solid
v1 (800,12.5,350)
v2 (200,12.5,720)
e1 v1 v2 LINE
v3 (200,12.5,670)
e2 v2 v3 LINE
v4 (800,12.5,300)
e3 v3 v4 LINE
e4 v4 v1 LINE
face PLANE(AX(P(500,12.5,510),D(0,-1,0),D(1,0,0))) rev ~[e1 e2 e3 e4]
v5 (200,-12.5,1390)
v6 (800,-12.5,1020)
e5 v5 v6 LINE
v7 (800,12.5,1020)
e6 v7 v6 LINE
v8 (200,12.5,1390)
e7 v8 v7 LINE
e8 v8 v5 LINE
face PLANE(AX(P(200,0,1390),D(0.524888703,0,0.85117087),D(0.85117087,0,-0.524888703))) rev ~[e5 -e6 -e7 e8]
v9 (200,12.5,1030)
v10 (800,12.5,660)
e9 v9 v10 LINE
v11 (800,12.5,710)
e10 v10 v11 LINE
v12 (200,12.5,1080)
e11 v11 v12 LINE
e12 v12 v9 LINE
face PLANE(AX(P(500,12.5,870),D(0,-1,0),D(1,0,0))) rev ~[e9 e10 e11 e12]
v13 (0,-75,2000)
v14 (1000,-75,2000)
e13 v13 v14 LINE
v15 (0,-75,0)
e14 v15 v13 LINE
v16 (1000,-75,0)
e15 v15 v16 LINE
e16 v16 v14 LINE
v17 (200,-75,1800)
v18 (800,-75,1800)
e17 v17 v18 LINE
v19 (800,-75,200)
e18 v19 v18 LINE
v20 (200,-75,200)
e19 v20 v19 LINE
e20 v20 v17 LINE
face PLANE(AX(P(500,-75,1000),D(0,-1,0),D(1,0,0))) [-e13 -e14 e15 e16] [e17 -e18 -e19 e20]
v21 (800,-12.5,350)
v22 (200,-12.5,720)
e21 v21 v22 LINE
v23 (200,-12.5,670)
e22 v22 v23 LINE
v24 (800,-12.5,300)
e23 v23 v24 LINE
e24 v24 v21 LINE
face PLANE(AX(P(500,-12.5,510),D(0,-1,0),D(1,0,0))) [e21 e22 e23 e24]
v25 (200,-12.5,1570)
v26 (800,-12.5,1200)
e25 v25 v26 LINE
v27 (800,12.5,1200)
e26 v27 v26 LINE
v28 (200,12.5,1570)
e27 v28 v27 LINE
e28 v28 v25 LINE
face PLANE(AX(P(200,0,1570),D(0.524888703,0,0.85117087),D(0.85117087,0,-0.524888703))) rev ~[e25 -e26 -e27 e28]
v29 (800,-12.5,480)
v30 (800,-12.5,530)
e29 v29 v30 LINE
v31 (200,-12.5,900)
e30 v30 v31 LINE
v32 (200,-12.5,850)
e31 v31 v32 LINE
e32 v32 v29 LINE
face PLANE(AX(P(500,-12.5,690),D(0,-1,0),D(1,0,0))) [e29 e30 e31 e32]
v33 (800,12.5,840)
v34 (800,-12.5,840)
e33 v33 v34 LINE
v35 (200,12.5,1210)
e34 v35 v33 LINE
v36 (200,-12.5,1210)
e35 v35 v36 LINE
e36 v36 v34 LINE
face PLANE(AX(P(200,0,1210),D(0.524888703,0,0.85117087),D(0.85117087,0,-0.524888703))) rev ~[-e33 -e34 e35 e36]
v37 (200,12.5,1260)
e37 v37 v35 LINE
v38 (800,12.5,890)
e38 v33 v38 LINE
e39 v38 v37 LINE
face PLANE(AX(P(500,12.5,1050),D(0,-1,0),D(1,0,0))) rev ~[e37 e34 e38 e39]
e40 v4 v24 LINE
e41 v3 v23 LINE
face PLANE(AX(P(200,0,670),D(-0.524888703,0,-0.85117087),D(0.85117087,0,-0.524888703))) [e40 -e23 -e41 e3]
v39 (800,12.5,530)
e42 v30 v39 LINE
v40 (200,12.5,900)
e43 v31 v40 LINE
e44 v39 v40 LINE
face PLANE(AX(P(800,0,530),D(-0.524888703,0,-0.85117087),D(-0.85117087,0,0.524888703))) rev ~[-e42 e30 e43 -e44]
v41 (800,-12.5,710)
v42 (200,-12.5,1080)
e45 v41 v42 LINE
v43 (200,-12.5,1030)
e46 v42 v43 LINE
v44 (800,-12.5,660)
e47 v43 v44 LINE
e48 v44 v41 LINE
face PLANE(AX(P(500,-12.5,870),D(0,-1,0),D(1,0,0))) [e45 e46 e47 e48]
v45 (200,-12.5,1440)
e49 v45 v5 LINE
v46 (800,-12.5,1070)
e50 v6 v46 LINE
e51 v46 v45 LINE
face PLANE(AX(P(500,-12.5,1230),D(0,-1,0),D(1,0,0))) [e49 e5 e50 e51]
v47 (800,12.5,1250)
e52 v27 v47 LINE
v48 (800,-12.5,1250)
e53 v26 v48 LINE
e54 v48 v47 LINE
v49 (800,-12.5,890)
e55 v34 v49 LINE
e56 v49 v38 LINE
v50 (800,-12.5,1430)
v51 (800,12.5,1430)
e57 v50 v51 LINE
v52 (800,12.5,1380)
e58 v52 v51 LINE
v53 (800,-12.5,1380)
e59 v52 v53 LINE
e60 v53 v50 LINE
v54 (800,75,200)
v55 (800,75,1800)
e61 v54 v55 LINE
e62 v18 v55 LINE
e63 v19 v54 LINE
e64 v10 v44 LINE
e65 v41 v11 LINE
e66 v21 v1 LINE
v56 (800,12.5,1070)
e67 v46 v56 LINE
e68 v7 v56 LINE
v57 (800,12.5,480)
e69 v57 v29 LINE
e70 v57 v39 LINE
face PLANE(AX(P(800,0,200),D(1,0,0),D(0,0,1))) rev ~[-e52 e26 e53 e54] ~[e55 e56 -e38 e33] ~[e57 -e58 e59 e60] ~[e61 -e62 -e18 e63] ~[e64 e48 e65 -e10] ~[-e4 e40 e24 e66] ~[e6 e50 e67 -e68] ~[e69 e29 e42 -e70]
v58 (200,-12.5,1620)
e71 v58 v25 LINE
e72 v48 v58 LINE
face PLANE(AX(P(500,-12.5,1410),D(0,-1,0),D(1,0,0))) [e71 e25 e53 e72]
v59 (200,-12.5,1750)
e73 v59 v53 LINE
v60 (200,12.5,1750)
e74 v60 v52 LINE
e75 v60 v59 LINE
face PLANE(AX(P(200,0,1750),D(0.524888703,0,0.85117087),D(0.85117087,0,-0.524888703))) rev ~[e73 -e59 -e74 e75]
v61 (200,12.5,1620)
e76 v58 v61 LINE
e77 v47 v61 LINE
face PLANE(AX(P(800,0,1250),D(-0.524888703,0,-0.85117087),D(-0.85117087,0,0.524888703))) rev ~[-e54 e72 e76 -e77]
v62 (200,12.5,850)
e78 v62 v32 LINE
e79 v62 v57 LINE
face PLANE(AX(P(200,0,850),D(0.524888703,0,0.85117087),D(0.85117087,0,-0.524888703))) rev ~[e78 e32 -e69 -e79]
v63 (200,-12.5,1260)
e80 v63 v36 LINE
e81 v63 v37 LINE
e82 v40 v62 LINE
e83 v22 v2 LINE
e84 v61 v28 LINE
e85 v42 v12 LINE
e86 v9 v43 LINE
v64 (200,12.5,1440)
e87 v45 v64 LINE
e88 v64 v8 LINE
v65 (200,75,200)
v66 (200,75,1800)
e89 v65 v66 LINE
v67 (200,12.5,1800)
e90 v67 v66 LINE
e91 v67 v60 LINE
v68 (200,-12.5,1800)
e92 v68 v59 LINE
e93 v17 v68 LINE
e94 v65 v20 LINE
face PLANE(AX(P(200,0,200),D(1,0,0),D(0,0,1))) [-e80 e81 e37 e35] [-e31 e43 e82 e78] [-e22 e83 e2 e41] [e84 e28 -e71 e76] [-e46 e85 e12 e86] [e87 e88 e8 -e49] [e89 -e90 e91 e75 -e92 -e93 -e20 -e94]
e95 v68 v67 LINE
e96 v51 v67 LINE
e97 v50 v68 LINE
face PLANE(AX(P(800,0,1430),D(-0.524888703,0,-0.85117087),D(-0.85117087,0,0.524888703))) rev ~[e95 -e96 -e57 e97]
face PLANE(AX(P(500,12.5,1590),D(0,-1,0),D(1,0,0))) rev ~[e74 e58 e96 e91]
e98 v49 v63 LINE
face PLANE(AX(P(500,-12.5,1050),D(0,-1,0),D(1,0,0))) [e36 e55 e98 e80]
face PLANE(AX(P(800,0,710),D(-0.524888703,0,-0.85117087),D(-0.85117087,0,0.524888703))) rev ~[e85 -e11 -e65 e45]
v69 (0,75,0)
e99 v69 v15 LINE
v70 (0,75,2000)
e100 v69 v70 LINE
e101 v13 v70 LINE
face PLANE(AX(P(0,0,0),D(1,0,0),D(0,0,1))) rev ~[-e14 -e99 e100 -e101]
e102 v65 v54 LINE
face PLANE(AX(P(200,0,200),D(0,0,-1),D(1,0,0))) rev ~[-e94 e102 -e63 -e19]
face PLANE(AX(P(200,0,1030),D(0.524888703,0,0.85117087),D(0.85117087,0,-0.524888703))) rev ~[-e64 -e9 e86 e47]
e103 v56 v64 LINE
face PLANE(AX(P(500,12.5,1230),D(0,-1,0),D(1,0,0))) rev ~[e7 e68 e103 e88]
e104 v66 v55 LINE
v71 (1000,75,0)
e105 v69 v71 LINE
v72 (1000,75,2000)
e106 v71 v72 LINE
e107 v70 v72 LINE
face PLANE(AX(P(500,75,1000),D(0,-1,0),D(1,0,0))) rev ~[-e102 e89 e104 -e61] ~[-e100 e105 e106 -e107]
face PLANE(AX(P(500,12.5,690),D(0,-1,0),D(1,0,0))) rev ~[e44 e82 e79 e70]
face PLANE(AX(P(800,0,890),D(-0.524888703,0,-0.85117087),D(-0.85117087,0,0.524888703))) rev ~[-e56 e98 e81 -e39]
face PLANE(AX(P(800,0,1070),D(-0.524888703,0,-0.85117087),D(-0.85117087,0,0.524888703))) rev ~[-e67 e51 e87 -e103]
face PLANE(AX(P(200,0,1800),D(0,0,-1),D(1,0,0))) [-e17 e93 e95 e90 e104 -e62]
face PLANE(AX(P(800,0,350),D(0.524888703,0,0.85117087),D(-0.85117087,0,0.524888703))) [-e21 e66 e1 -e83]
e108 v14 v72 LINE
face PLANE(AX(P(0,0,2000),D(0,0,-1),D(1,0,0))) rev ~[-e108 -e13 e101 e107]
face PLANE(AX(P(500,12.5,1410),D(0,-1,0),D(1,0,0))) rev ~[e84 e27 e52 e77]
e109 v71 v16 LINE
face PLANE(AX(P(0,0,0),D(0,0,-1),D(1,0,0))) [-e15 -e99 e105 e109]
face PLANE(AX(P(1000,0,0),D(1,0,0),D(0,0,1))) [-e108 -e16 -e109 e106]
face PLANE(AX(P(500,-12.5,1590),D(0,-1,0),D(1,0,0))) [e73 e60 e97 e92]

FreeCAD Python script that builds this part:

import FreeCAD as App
import Part
import Sketcher
Q = App.Units.Quantity


def add_polygon(sketch, points):
    """Adds a closed chain of lines whose ends are joined by coincident constraints."""
    first, n = sketch.GeometryCount, len(points)
    for a, b in zip(points, points[1:] + points[:1]):
        sketch.addGeometry(Part.LineSegment(App.Vector(*a, 0), App.Vector(*b, 0)), False)
    for i in range(n):
        sketch.addConstraint(Sketcher.Constraint("Coincident", first + i, 2, first + (i + 1) % n, 1))

doc = App.newDocument("Part")
body = doc.addObject("PartDesign::Body", "Body")

sketch1 = body.newObject("Sketcher::SketchObject", "Sketch")
sketch1.AttachmentSupport = (doc.getObject("XZ_Plane"), [""])
sketch1.MapMode = "FlatFace"
add_polygon(sketch1, [(0, 2000), (0, 0), (1000, 0), (1000, 2000)])
add_polygon(sketch1, [(800, 200), (200, 200), (200, 1800), (800, 1800)])
sketch1.addConstraint([
    Sketcher.Constraint("Vertical", 0),
    Sketcher.Constraint("Horizontal", 1),
    Sketcher.Constraint("Vertical", 2),
    Sketcher.Constraint("Horizontal", 3),
    Sketcher.Constraint("Horizontal", 4),
    Sketcher.Constraint("Vertical", 5),
    Sketcher.Constraint("Horizontal", 6),
    Sketcher.Constraint("Vertical", 7),
    Sketcher.Constraint("Coincident", 0, 2, -1, 1),
    Sketcher.Constraint("DistanceX", 1, 1, 1, 2, Q("1000 mm")),
    Sketcher.Constraint("DistanceX", 4, 2, 4, 1, Q("600 mm")),
    Sketcher.Constraint("DistanceY", 0, 2, 0, 1, Q("2000 mm")),
    Sketcher.Constraint("DistanceY", 5, 1, 5, 2, Q("1600 mm")),
    Sketcher.Constraint("DistanceX", -1, 1, 4, 2, Q("200 mm")),
    Sketcher.Constraint("DistanceY", -1, 1, 4, 2, Q("200 mm")),
])
pad1 = body.newObject("PartDesign::Pad", "Pad")
pad1.Profile = sketch1
pad1.Length = 150
pad1.Midplane = True

sketch2 = body.newObject("Sketcher::SketchObject", "Sketch001")
sketch2.AttachmentSupport = (doc.getObject("XZ_Plane"), [""])
sketch2.MapMode = "FlatFace"
add_polygon(sketch2, [(200, 1800), (200, 1750), (800, 1380), (800, 1430)])
add_polygon(sketch2, [(200, 1620), (200, 1570), (800, 1200), (800, 1250)])
add_polygon(sketch2, [(200, 1440), (200, 1390), (800, 1020), (800, 1070)])
add_polygon(sketch2, [(200, 1260), (200, 1210), (800, 840), (800, 890)])
add_polygon(sketch2, [(200, 1080), (200, 1030), (800, 660), (800, 710)])
add_polygon(sketch2, [(200, 900), (200, 850), (800, 480), (800, 530)])
add_polygon(sketch2, [(200, 720), (200, 670), (800, 300), (800, 350)])
sketch2.addConstraint([
    Sketcher.Constraint("Vertical", 0),
    Sketcher.Constraint("Vertical", 2),
    Sketcher.Constraint("Vertical", 4),
    Sketcher.Constraint("Vertical", 6),
    Sketcher.Constraint("Vertical", 8),
    Sketcher.Constraint("Vertical", 10),
    Sketcher.Constraint("Vertical", 12),
    Sketcher.Constraint("Vertical", 14),
    Sketcher.Constraint("Vertical", 16),
    Sketcher.Constraint("Vertical", 18),
    Sketcher.Constraint("Vertical", 20),
    Sketcher.Constraint("Vertical", 22),
    Sketcher.Constraint("Vertical", 24),
    Sketcher.Constraint("Vertical", 26),
    Sketcher.Constraint("Parallel", 1, 3),
    Sketcher.Constraint("Parallel", 3, 5),
    Sketcher.Constraint("Parallel", 5, 7),
    Sketcher.Constraint("Parallel", 7, 9),
    Sketcher.Constraint("Parallel", 9, 11),
    Sketcher.Constraint("Parallel", 11, 13),
    Sketcher.Constraint("Parallel", 13, 15),
    Sketcher.Constraint("Parallel", 15, 17),
    Sketcher.Constraint("Parallel", 17, 19),
    Sketcher.Constraint("Parallel", 19, 21),
    Sketcher.Constraint("Parallel", 21, 23),
    Sketcher.Constraint("Parallel", 23, 25),
    Sketcher.Constraint("Parallel", 25, 27),
    Sketcher.Constraint("Vertical", 3, 2, 4, 2),
    Sketcher.Constraint("Vertical", 2, 2, 5, 2),
    Sketcher.Constraint("Vertical", 7, 2, 8, 2),
    Sketcher.Constraint("Vertical", 6, 2, 9, 2),
    Sketcher.Constraint("Vertical", 11, 2, 12, 2),
    Sketcher.Constraint("Vertical", 10, 2, 13, 2),
    Sketcher.Constraint("Vertical", 15, 2, 16, 2),
    Sketcher.Constraint("Vertical", 14, 2, 17, 2),
    Sketcher.Constraint("Vertical", 19, 2, 20, 2),
    Sketcher.Constraint("Vertical", 18, 2, 21, 2),
    Sketcher.Constraint("Vertical", 23, 2, 24, 2),
    Sketcher.Constraint("Vertical", 22, 2, 25, 2),
    Sketcher.Constraint("Equal", 2, 4),
    Sketcher.Constraint("Equal", 6, 8),
    Sketcher.Constraint("Equal", 10, 12),
    Sketcher.Constraint("Equal", 14, 16),
    Sketcher.Constraint("Equal", 18, 20),
    Sketcher.Constraint("Equal", 22, 24),
    Sketcher.Constraint("DistanceY", 0, 2, 0, 1, Q("50 mm")),
    Sketcher.Constraint("DistanceX", -1, 1, 0, 2, Q("200 mm")),
    Sketcher.Constraint("DistanceY", -1, 1, 0, 2, Q("1750 mm")),
    Sketcher.Constraint("DistanceX", -1, 1, 1, 2, Q("800 mm")),
    Sketcher.Constraint("DistanceY", -1, 1, 1, 2, Q("1380 mm")),
    Sketcher.Constraint("DistanceY", -1, 1, 4, 2, Q("1570 mm")),
    Sketcher.Constraint("DistanceY", -1, 1, 8, 2, Q("1390 mm")),
    Sketcher.Constraint("DistanceY", -1, 1, 12, 2, Q("1210 mm")),
    Sketcher.Constraint("DistanceY", -1, 1, 16, 2, Q("1030 mm")),
    Sketcher.Constraint("DistanceY", -1, 1, 20, 2, Q("850 mm")),
    Sketcher.Constraint("DistanceY", -1, 1, 24, 2, Q("670 mm")),
])
pad2 = body.newObject("PartDesign::Pad", "Pad001")
pad2.Profile = sketch2
pad2.Length = 25
pad2.Midplane = True

doc.recompute()
